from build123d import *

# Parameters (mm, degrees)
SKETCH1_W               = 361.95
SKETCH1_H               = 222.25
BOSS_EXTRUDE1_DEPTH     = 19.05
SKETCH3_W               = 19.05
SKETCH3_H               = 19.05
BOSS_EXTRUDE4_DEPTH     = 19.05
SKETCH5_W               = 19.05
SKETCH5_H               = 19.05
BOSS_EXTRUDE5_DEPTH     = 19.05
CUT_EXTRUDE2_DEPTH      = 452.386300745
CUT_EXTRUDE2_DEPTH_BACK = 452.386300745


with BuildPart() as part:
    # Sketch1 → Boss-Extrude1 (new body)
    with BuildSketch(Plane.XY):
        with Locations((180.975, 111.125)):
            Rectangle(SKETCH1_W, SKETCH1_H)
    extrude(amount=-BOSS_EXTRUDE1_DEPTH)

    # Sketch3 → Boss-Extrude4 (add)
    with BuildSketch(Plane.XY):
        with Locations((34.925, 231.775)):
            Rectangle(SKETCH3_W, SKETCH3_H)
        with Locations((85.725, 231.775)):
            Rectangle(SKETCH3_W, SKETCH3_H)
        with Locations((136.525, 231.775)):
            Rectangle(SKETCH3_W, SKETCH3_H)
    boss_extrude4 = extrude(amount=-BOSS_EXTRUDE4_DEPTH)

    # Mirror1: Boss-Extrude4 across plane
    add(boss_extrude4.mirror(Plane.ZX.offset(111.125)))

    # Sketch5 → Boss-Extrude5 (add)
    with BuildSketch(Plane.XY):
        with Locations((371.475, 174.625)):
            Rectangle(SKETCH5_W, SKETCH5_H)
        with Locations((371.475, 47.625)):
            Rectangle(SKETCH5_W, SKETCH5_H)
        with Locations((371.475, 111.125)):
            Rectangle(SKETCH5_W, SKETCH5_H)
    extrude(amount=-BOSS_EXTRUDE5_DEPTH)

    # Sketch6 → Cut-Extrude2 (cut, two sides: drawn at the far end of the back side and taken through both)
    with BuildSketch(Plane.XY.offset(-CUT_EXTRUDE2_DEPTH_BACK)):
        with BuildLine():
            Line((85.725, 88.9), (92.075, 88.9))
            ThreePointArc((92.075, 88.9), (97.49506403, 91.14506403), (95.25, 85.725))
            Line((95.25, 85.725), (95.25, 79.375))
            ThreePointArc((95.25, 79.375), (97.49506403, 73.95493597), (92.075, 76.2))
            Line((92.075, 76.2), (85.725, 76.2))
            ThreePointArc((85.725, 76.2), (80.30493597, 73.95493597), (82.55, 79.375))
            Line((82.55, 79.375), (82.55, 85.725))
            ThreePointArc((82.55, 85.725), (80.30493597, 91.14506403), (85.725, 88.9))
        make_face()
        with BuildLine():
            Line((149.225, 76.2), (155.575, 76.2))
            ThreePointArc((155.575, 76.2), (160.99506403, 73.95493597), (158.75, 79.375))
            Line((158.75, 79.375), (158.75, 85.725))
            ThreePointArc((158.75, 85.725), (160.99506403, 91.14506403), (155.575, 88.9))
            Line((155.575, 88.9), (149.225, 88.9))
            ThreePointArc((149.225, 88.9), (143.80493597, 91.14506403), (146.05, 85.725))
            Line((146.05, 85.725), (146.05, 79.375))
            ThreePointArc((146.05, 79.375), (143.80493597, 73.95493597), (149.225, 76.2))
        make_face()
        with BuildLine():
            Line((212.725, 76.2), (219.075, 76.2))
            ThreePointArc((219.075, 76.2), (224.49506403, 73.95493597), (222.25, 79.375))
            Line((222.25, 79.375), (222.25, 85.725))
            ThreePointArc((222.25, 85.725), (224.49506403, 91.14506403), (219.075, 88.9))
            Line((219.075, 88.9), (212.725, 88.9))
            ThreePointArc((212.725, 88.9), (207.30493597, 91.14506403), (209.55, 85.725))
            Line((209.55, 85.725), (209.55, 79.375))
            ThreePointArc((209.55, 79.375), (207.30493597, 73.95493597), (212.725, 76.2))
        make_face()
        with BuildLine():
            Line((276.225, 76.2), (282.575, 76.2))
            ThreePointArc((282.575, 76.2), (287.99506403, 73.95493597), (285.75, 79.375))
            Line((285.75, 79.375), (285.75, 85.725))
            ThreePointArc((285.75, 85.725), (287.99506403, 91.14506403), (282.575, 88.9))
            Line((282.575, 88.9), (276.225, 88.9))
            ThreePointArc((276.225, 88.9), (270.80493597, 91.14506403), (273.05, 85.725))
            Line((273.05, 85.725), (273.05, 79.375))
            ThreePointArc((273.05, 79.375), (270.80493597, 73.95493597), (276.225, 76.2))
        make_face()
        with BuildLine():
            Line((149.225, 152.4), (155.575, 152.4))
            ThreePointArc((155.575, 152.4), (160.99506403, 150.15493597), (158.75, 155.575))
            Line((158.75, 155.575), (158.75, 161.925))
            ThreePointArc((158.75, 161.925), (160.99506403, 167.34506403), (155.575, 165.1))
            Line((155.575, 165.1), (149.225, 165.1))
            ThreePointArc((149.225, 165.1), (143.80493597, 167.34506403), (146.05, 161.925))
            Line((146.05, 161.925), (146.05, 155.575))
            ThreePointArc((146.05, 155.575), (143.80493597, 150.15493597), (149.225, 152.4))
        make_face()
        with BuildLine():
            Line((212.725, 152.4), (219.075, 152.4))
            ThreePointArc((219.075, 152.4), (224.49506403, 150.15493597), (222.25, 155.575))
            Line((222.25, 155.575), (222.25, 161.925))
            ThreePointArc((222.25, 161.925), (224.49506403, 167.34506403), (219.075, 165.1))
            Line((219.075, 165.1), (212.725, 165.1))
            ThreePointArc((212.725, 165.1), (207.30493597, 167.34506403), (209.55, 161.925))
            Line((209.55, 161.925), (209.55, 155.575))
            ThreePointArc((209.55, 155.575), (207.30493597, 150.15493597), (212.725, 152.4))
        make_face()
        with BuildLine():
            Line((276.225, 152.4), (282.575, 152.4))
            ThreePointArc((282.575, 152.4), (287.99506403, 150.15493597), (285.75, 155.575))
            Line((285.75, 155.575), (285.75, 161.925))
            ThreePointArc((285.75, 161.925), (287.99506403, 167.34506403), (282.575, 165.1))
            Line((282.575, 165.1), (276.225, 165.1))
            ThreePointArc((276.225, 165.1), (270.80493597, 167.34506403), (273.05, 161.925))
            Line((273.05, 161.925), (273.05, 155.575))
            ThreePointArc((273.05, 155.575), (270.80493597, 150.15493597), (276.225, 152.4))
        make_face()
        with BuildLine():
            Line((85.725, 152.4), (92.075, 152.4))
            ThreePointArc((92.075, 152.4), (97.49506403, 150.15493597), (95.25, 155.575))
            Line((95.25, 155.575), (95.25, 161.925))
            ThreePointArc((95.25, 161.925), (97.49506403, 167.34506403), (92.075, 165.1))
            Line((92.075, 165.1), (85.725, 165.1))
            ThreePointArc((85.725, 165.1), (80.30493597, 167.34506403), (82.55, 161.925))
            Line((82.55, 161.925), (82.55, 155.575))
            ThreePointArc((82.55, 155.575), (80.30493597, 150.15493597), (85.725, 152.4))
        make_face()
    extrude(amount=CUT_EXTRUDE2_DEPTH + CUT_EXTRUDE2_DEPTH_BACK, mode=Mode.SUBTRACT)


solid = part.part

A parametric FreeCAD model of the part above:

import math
import FreeCAD as App
import Part
import Sketcher
Q = App.Units.Quantity


def add_polygon(sketch, points):
    """Adds a closed chain of lines whose ends are joined by coincident constraints."""
    first, n = sketch.GeometryCount, len(points)
    for a, b in zip(points, points[1:] + points[:1]):
        sketch.addGeometry(Part.LineSegment(App.Vector(*a, 0), App.Vector(*b, 0)), False)
    for i in range(n):
        sketch.addConstraint(Sketcher.Constraint("Coincident", first + i, 2, first + (i + 1) % n, 1))

doc = App.newDocument("Part")
body = doc.addObject("PartDesign::Body", "Body")

sketch1 = doc.addObject("Sketcher::SketchObject", "Sketch")
body.addObject(sketch1)
sketch1.AttachmentSupport = (doc.XY_Plane, [""])
sketch1.MapMode = "FlatFace"
add_polygon(sketch1, [(0, 222), (0, 0), (362, 0), (362, 222)])
sketch1.addConstraint([
    Sketcher.Constraint("Vertical", 0),
    Sketcher.Constraint("Horizontal", 1),
    Sketcher.Constraint("Vertical", 2),
    Sketcher.Constraint("Horizontal", 3),
    Sketcher.Constraint("Coincident", 0, 2, -1, 1),
    Sketcher.Constraint("DistanceX", 1, 1, 1, 2, Q("14.25 in")),
    Sketcher.Constraint("DistanceY", 0, 2, 0, 1, Q("8.75 in")),
])
pad1 = doc.addObject("PartDesign::Pad", "Pad")
body.addObject(pad1)
pad1.Profile = sketch1
pad1.Length = Q("0.75 in")
pad1.Reversed = True

sketch2 = doc.addObject("Sketcher::SketchObject", "Sketch001")
body.addObject(sketch2)
sketch2.AttachmentSupport = (doc.XY_Plane, [""])
sketch2.MapMode = "FlatFace"
add_polygon(sketch2, [(25, 241), (25, 222), (44, 222), (44, 241)])
add_polygon(sketch2, [(76, 241), (76, 222), (95, 222), (95, 241)])
add_polygon(sketch2, [(127, 241), (127, 222), (146, 222), (146, 241)])
sketch2.addConstraint([
    Sketcher.Constraint("Vertical", 0),
    Sketcher.Constraint("Horizontal", 1),
    Sketcher.Constraint("Vertical", 2),
    Sketcher.Constraint("Horizontal", 3),
    Sketcher.Constraint("Vertical", 4),
    Sketcher.Constraint("Horizontal", 5),
    Sketcher.Constraint("Vertical", 6),
    Sketcher.Constraint("Horizontal", 7),
    Sketcher.Constraint("Vertical", 8),
    Sketcher.Constraint("Horizontal", 9),
    Sketcher.Constraint("Vertical", 10),
    Sketcher.Constraint("Horizontal", 11),
    Sketcher.Constraint("Horizontal", 1, 2, 4, 2),
    Sketcher.Constraint("Horizontal", 3, 2, 6, 2),
    Sketcher.Constraint("Horizontal", 5, 2, 8, 2),
    Sketcher.Constraint("Horizontal", 7, 2, 10, 2),
    Sketcher.Constraint("Equal", 3, 5),
    Sketcher.Constraint("Equal", 7, 9),
    Sketcher.Constraint("Equal", 11, 0),
    Sketcher.Constraint("DistanceX", -1, 1, 0, 2, Q("1 in")),
    Sketcher.Constraint("DistanceX", -1, 1, 4, 2, Q("3 in")),
    Sketcher.Constraint("DistanceX", -1, 1, 8, 2, Q("5 in")),
    Sketcher.Constraint("DistanceX", 1, 1, 1, 2, Q("0.75 in")),
    Sketcher.Constraint("DistanceY", -1, 1, 2, 2, Q("9.5 in")),
])
pad2 = doc.addObject("PartDesign::Pad", "Pad001")
body.addObject(pad2)
pad2.Profile = sketch2
pad2.Length = Q("0.75 in")
pad2.Reversed = True
doc.recompute()

datumplane = doc.addObject("PartDesign::Plane", "DatumPlane")
body.addObject(datumplane)
datumplane.AttachmentSupport = (doc.XZ_Plane, [""])
datumplane.MapMode = "FlatFace"
datumplane.AttachmentOffset = App.Placement(App.Vector(0, 0, -4.375 * 25.4), App.Rotation())
mirrored = doc.addObject("PartDesign::Mirrored", "Mirrored")
body.addObject(mirrored)
mirrored.Originals = [pad2]
mirrored.MirrorPlane = (datumplane, [""])
body.Tip = mirrored

sketch3 = doc.addObject("Sketcher::SketchObject", "Sketch002")
body.addObject(sketch3)
sketch3.AttachmentSupport = (doc.XY_Plane, [""])
sketch3.MapMode = "FlatFace"
add_polygon(sketch3, [(362, 184), (362, 165), (381, 165), (381, 184)])
add_polygon(sketch3, [(362, 57), (362, 38), (381, 38), (381, 57)])
add_polygon(sketch3, [(362, 121), (362, 102), (381, 102), (381, 121)])
sketch3.addConstraint([
    Sketcher.Constraint("Vertical", 0),
    Sketcher.Constraint("Horizontal", 1),
    Sketcher.Constraint("Vertical", 2),
    Sketcher.Constraint("Horizontal", 3),
    Sketcher.Constraint("Vertical", 4),
    Sketcher.Constraint("Horizontal", 5),
    Sketcher.Constraint("Vertical", 6),
    Sketcher.Constraint("Horizontal", 7),
    Sketcher.Constraint("Vertical", 8),
    Sketcher.Constraint("Horizontal", 9),
    Sketcher.Constraint("Vertical", 10),
    Sketcher.Constraint("Horizontal", 11),
    Sketcher.Constraint("Vertical", 3, 2, 4, 2),
    Sketcher.Constraint("Vertical", 2, 2, 5, 2),
    Sketcher.Constraint("Vertical", 7, 2, 8, 2),
    Sketcher.Constraint("Vertical", 6, 2, 9, 2),
    Sketcher.Constraint("Equal", 11, 0),
    Sketcher.Constraint("Equal", 2, 4),
    Sketcher.Constraint("Equal", 6, 8),
    Sketcher.Constraint("DistanceX", -1, 1, 1, 2, Q("15 in")),
    Sketcher.Constraint("DistanceY", -1, 1, 8, 2, Q("4 in")),
    Sketcher.Constraint("DistanceY", 4, 2, 0, 2, Q("5 in")),
    Sketcher.Constraint("DistanceX", 1, 1, 1, 2, Q("0.75 in")),
    Sketcher.Constraint("DistanceY", -1, 1, 0, 2, Q("6.5 in")),
])
pad3 = doc.addObject("PartDesign::Pad", "Pad002")
body.addObject(pad3)
pad3.Profile = sketch3
pad3.Length = Q("0.75 in")
pad3.Reversed = True

sketch4 = doc.addObject("Sketcher::SketchObject", "Sketch003")
body.addObject(sketch4)
sketch4.AttachmentSupport = (doc.XY_Plane, [""])
sketch4.MapMode = "FlatFace"
sketch4.addGeometry([
    Part.LineSegment(App.Vector(92.1, 88.9, 0), App.Vector(85.7, 88.9, 0)),
    Part.ArcOfCircle(Part.Circle(App.Vector(82.5, 88.9, 0), App.Vector(0, 0, 1), 3.2), math.radians(0), math.radians(270)),
    Part.LineSegment(App.Vector(82.5, 85.7, 0), App.Vector(82.5, 79.4, 0)),
    Part.ArcOfCircle(Part.Circle(App.Vector(82.5, 76.2, 0), App.Vector(0, 0, 1), 3.2), math.radians(90), math.radians(360)),
    Part.LineSegment(App.Vector(85.7, 76.2, 0), App.Vector(92.1, 76.2, 0)),
    Part.ArcOfCircle(Part.Circle(App.Vector(95.2, 76.2, 0), App.Vector(0, 0, 1), 3.2), math.radians(180), math.radians(450)),
    Part.LineSegment(App.Vector(95.2, 79.4, 0), App.Vector(95.2, 85.7, 0)),
    Part.ArcOfCircle(Part.Circle(App.Vector(95.2, 88.9, 0), App.Vector(0, 0, 1), 3.2), math.radians(-90), math.radians(180)),
    Part.LineSegment(App.Vector(149.2, 76.2, 0), App.Vector(155.6, 76.2, 0)),
    Part.ArcOfCircle(Part.Circle(App.Vector(158.8, 76.2, 0), App.Vector(0, 0, 1), 3.2), math.radians(180), math.radians(450)),
    Part.LineSegment(App.Vector(158.8, 79.4, 0), App.Vector(158.8, 85.7, 0)),
    Part.ArcOfCircle(Part.Circle(App.Vector(158.8, 88.9, 0), App.Vector(0, 0, 1), 3.2), math.radians(-90), math.radians(180)),
    Part.LineSegment(App.Vector(155.6, 88.9, 0), App.Vector(149.2, 88.9, 0)),
    Part.ArcOfCircle(Part.Circle(App.Vector(146.1, 88.9, 0), App.Vector(0, 0, 1), 3.2), math.radians(0), math.radians(270)),
    Part.LineSegment(App.Vector(146.1, 85.7, 0), App.Vector(146.1, 79.4, 0)),
    Part.ArcOfCircle(Part.Circle(App.Vector(146.1, 76.2, 0), App.Vector(0, 0, 1), 3.2), math.radians(90), math.radians(360)),
    Part.LineSegment(App.Vector(212.7, 76.2, 0), App.Vector(219.1, 76.2, 0)),
    Part.ArcOfCircle(Part.Circle(App.Vector(222.2, 76.2, 0), App.Vector(0, 0, 1), 3.2), math.radians(180), math.radians(450)),
    Part.LineSegment(App.Vector(222.2, 79.4, 0), App.Vector(222.2, 85.7, 0)),
    Part.ArcOfCircle(Part.Circle(App.Vector(222.2, 88.9, 0), App.Vector(0, 0, 1), 3.2), math.radians(-90), math.radians(180)),
    Part.LineSegment(App.Vector(219.1, 88.9, 0), App.Vector(212.7, 88.9, 0)),
    Part.ArcOfCircle(Part.Circle(App.Vector(209.6, 88.9, 0), App.Vector(0, 0, 1), 3.2), math.radians(0), math.radians(270)),
    Part.LineSegment(App.Vector(209.6, 85.7, 0), App.Vector(209.6, 79.4, 0)),
    Part.ArcOfCircle(Part.Circle(App.Vector(209.6, 76.2, 0), App.Vector(0, 0, 1), 3.2), math.radians(90), math.radians(360)),
    Part.LineSegment(App.Vector(276.2, 76.2, 0), App.Vector(282.6, 76.2, 0)),
    Part.ArcOfCircle(Part.Circle(App.Vector(285.8, 76.2, 0), App.Vector(0, 0, 1), 3.2), math.radians(180), math.radians(450)),
    Part.LineSegment(App.Vector(285.8, 79.4, 0), App.Vector(285.8, 85.7, 0)),
    Part.ArcOfCircle(Part.Circle(App.Vector(285.8, 88.9, 0), App.Vector(0, 0, 1), 3.2), math.radians(-90), math.radians(180)),
    Part.LineSegment(App.Vector(282.6, 88.9, 0), App.Vector(276.2, 88.9, 0)),
    Part.ArcOfCircle(Part.Circle(App.Vector(273.1, 88.9, 0), App.Vector(0, 0, 1), 3.2), math.radians(0), math.radians(270)),
    Part.LineSegment(App.Vector(273.1, 85.7, 0), App.Vector(273.1, 79.4, 0)),
    Part.ArcOfCircle(Part.Circle(App.Vector(273.1, 76.2, 0), App.Vector(0, 0, 1), 3.2), math.radians(90), math.radians(360)),
    Part.LineSegment(App.Vector(149.2, 152.4, 0), App.Vector(155.6, 152.4, 0)),
    Part.ArcOfCircle(Part.Circle(App.Vector(158.8, 152.4, 0), App.Vector(0, 0, 1), 3.2), math.radians(180), math.radians(450)),
    Part.LineSegment(App.Vector(158.8, 155.6, 0), App.Vector(158.8, 161.9, 0)),
    Part.ArcOfCircle(Part.Circle(App.Vector(158.8, 165.1, 0), App.Vector(0, 0, 1), 3.2), math.radians(-90), math.radians(180)),
    Part.LineSegment(App.Vector(155.6, 165.1, 0), App.Vector(149.2, 165.1, 0)),
    Part.ArcOfCircle(Part.Circle(App.Vector(146.1, 165.1, 0), App.Vector(0, 0, 1), 3.2), math.radians(0), math.radians(270)),
    Part.LineSegment(App.Vector(146.1, 161.9, 0), App.Vector(146.1, 155.6, 0)),
    Part.ArcOfCircle(Part.Circle(App.Vector(146.1, 152.4, 0), App.Vector(0, 0, 1), 3.2), math.radians(90), math.radians(360)),
    Part.LineSegment(App.Vector(212.7, 152.4, 0), App.Vector(219.1, 152.4, 0)),
    Part.ArcOfCircle(Part.Circle(App.Vector(222.2, 152.4, 0), App.Vector(0, 0, 1), 3.2), math.radians(180), math.radians(450)),
    Part.LineSegment(App.Vector(222.2, 155.6, 0), App.Vector(222.2, 161.9, 0)),
    Part.ArcOfCircle(Part.Circle(App.Vector(222.2, 165.1, 0), App.Vector(0, 0, 1), 3.2), math.radians(-90), math.radians(180)),
    Part.LineSegment(App.Vector(219.1, 165.1, 0), App.Vector(212.7, 165.1, 0)),
    Part.ArcOfCircle(Part.Circle(App.Vector(209.6, 165.1, 0), App.Vector(0, 0, 1), 3.2), math.radians(0), math.radians(270)),
    Part.LineSegment(App.Vector(209.6, 161.9, 0), App.Vector(209.6, 155.6, 0)),
    Part.ArcOfCircle(Part.Circle(App.Vector(209.6, 152.4, 0), App.Vector(0, 0, 1), 3.2), math.radians(90), math.radians(360)),
    Part.LineSegment(App.Vector(276.2, 152.4, 0), App.Vector(282.6, 152.4, 0)),
    Part.ArcOfCircle(Part.Circle(App.Vector(285.8, 152.4, 0), App.Vector(0, 0, 1), 3.2), math.radians(180), math.radians(450)),
    Part.LineSegment(App.Vector(285.8, 155.6, 0), App.Vector(285.8, 161.9, 0)),
    Part.ArcOfCircle(Part.Circle(App.Vector(285.8, 165.1, 0), App.Vector(0, 0, 1), 3.2), math.radians(-90), math.radians(180)),
    Part.LineSegment(App.Vector(282.6, 165.1, 0), App.Vector(276.2, 165.1, 0)),
    Part.ArcOfCircle(Part.Circle(App.Vector(273.1, 165.1, 0), App.Vector(0, 0, 1), 3.2), math.radians(0), math.radians(270)),
    Part.LineSegment(App.Vector(273.1, 161.9, 0), App.Vector(273.1, 155.6, 0)),
    Part.ArcOfCircle(Part.Circle(App.Vector(273.1, 152.4, 0), App.Vector(0, 0, 1), 3.2), math.radians(90), math.radians(360)),
    Part.LineSegment(App.Vector(85.7, 152.4, 0), App.Vector(92.1, 152.4, 0)),
    Part.ArcOfCircle(Part.Circle(App.Vector(95.2, 152.4, 0), App.Vector(0, 0, 1), 3.2), math.radians(180), math.radians(450)),
    Part.LineSegment(App.Vector(95.2, 155.6, 0), App.Vector(95.2, 161.9, 0)),
    Part.ArcOfCircle(Part.Circle(App.Vector(95.2, 165.1, 0), App.Vector(0, 0, 1), 3.2), math.radians(-90), math.radians(180)),
    Part.LineSegment(App.Vector(92.1, 165.1, 0), App.Vector(85.7, 165.1, 0)),
    Part.ArcOfCircle(Part.Circle(App.Vector(82.5, 165.1, 0), App.Vector(0, 0, 1), 3.2), math.radians(0), math.radians(270)),
    Part.LineSegment(App.Vector(82.5, 161.9, 0), App.Vector(82.5, 155.6, 0)),
    Part.ArcOfCircle(Part.Circle(App.Vector(82.5, 152.4, 0), App.Vector(0, 0, 1), 3.2), math.radians(90), math.radians(360)),
], False)
sketch4.addConstraint([
    Sketcher.Constraint("Coincident", 0, 2, 1, 1),
    Sketcher.Constraint("Coincident", 1, 2, 2, 1),
    Sketcher.Constraint("Coincident", 2, 2, 3, 1),
    Sketcher.Constraint("Coincident", 3, 2, 4, 1),
    Sketcher.Constraint("Coincident", 4, 2, 5, 1),
    Sketcher.Constraint("Coincident", 5, 2, 6, 1),
    Sketcher.Constraint("Coincident", 6, 2, 7, 1),
    Sketcher.Constraint("Coincident", 7, 2, 0, 1),
    Sketcher.Constraint("Coincident", 8, 2, 9, 1),
    Sketcher.Constraint("Coincident", 9, 2, 10, 1),
    Sketcher.Constraint("Coincident", 10, 2, 11, 1),
    Sketcher.Constraint("Coincident", 11, 2, 12, 1),
    Sketcher.Constraint("Coincident", 12, 2, 13, 1),
    Sketcher.Constraint("Coincident", 13, 2, 14, 1),
    Sketcher.Constraint("Coincident", 14, 2, 15, 1),
    Sketcher.Constraint("Coincident", 15, 2, 8, 1),
    Sketcher.Constraint("Coincident", 16, 2, 17, 1),
    Sketcher.Constraint("Coincident", 17, 2, 18, 1),
    Sketcher.Constraint("Coincident", 18, 2, 19, 1),
    Sketcher.Constraint("Coincident", 19, 2, 20, 1),
    Sketcher.Constraint("Coincident", 20, 2, 21, 1),
    Sketcher.Constraint("Coincident", 21, 2, 22, 1),
    Sketcher.Constraint("Coincident", 22, 2, 23, 1),
    Sketcher.Constraint("Coincident", 23, 2, 16, 1),
    Sketcher.Constraint("Coincident", 24, 2, 25, 1),
    Sketcher.Constraint("Coincident", 25, 2, 26, 1),
    Sketcher.Constraint("Coincident", 26, 2, 27, 1),
    Sketcher.Constraint("Coincident", 27, 2, 28, 1),
    Sketcher.Constraint("Coincident", 28, 2, 29, 1),
    Sketcher.Constraint("Coincident", 29, 2, 30, 1),
    Sketcher.Constraint("Coincident", 30, 2, 31, 1),
    Sketcher.Constraint("Coincident", 31, 2, 24, 1),
    Sketcher.Constraint("Coincident", 32, 2, 33, 1),
    Sketcher.Constraint("Coincident", 33, 2, 34, 1),
    Sketcher.Constraint("Coincident", 34, 2, 35, 1),
    Sketcher.Constraint("Coincident", 35, 2, 36, 1),
    Sketcher.Constraint("Coincident", 36, 2, 37, 1),
    Sketcher.Constraint("Coincident", 37, 2, 38, 1),
    Sketcher.Constraint("Coincident", 38, 2, 39, 1),
    Sketcher.Constraint("Coincident", 39, 2, 32, 1),
    Sketcher.Constraint("Coincident", 40, 2, 41, 1),
    Sketcher.Constraint("Coincident", 41, 2, 42, 1),
    Sketcher.Constraint("Coincident", 42, 2, 43, 1),
    Sketcher.Constraint("Coincident", 43, 2, 44, 1),
    Sketcher.Constraint("Coincident", 44, 2, 45, 1),
    Sketcher.Constraint("Coincident", 45, 2, 46, 1),
    Sketcher.Constraint("Coincident", 46, 2, 47, 1),
    Sketcher.Constraint("Coincident", 47, 2, 40, 1),
    Sketcher.Constraint("Coincident", 48, 2, 49, 1),
    Sketcher.Constraint("Coincident", 49, 2, 50, 1),
    Sketcher.Constraint("Coincident", 50, 2, 51, 1),
    Sketcher.Constraint("Coincident", 51, 2, 52, 1),
    Sketcher.Constraint("Coincident", 52, 2, 53, 1),
    Sketcher.Constraint("Coincident", 53, 2, 54, 1),
    Sketcher.Constraint("Coincident", 54, 2, 55, 1),
    Sketcher.Constraint("Coincident", 55, 2, 48, 1),
    Sketcher.Constraint("Coincident", 56, 2, 57, 1),
    Sketcher.Constraint("Coincident", 57, 2, 58, 1),
    Sketcher.Constraint("Coincident", 58, 2, 59, 1),
    Sketcher.Constraint("Coincident", 59, 2, 60, 1),
    Sketcher.Constraint("Coincident", 60, 2, 61, 1),
    Sketcher.Constraint("Coincident", 61, 2, 62, 1),
    Sketcher.Constraint("Coincident", 62, 2, 63, 1),
    Sketcher.Constraint("Coincident", 63, 2, 56, 1),
    Sketcher.Constraint("Horizontal", 0),
    Sketcher.Constraint("Vertical", 2),
    Sketcher.Constraint("Horizontal", 4),
    Sketcher.Constraint("Vertical", 6),
    Sketcher.Constraint("Horizontal", 8),
    Sketcher.Constraint("Vertical", 10),
    Sketcher.Constraint("Horizontal", 12),
    Sketcher.Constraint("Vertical", 14),
    Sketcher.Constraint("Horizontal", 16),
    Sketcher.Constraint("Vertical", 18),
    Sketcher.Constraint("Horizontal", 20),
    Sketcher.Constraint("Vertical", 22),
    Sketcher.Constraint("Horizontal", 24),
    Sketcher.Constraint("Vertical", 26),
    Sketcher.Constraint("Horizontal", 28),
    Sketcher.Constraint("Vertical", 30),
    Sketcher.Constraint("Horizontal", 32),
    Sketcher.Constraint("Vertical", 34),
    Sketcher.Constraint("Horizontal", 36),
    Sketcher.Constraint("Vertical", 38),
    Sketcher.Constraint("Horizontal", 40),
    Sketcher.Constraint("Vertical", 42),
    Sketcher.Constraint("Horizontal", 44),
    Sketcher.Constraint("Vertical", 46),
    Sketcher.Constraint("Horizontal", 48),
    Sketcher.Constraint("Vertical", 50),
    Sketcher.Constraint("Horizontal", 52),
    Sketcher.Constraint("Vertical", 54),
    Sketcher.Constraint("Horizontal", 56),
    Sketcher.Constraint("Vertical", 58),
    Sketcher.Constraint("Horizontal", 60),
    Sketcher.Constraint("Vertical", 62),
    Sketcher.Constraint("Equal", 1, 3),
    Sketcher.Constraint("Equal", 3, 5),
    Sketcher.Constraint("Equal", 5, 7),
    Sketcher.Constraint("Equal", 7, 9),
    Sketcher.Constraint("Equal", 9, 11),
    Sketcher.Constraint("Equal", 11, 13),
    Sketcher.Constraint("Equal", 13, 15),
    Sketcher.Constraint("Equal", 15, 17),
    Sketcher.Constraint("Equal", 17, 19),
    Sketcher.Constraint("Equal", 19, 21),
    Sketcher.Constraint("Equal", 21, 23),
    Sketcher.Constraint("Equal", 23, 25),
    Sketcher.Constraint("Equal", 25, 27),
    Sketcher.Constraint("Equal", 27, 29),
    Sketcher.Constraint("Equal", 29, 31),
    Sketcher.Constraint("Equal", 31, 33),
    Sketcher.Constraint("Equal", 33, 35),
    Sketcher.Constraint("Equal", 35, 37),
    Sketcher.Constraint("Equal", 37, 39),
    Sketcher.Constraint("Equal", 39, 41),
    Sketcher.Constraint("Equal", 41, 43),
    Sketcher.Constraint("Equal", 43, 45),
    Sketcher.Constraint("Equal", 45, 47),
    Sketcher.Constraint("Equal", 47, 49),
    Sketcher.Constraint("Equal", 49, 51),
    Sketcher.Constraint("Equal", 51, 53),
    Sketcher.Constraint("Equal", 53, 55),
    Sketcher.Constraint("Equal", 55, 57),
    Sketcher.Constraint("Equal", 57, 59),
    Sketcher.Constraint("Equal", 59, 61),
    Sketcher.Constraint("Equal", 61, 63),
    Sketcher.Constraint("Horizontal", 3, 3, 5, 3),
    Sketcher.Constraint("Horizontal", 1, 3, 7, 3),
    Sketcher.Constraint("Horizontal", 5, 3, 9, 3),
    Sketcher.Constraint("Horizontal", 7, 3, 11, 3),
    Sketcher.Constraint("Horizontal", 11, 3, 13, 3),
    Sketcher.Constraint("Horizontal", 9, 3, 15, 3),
    Sketcher.Constraint("Horizontal", 15, 3, 17, 3),
    Sketcher.Constraint("Horizontal", 13, 3, 19, 3),
    Sketcher.Constraint("Horizontal", 19, 3, 21, 3),
    Sketcher.Constraint("Horizontal", 17, 3, 23, 3),
    Sketcher.Constraint("Horizontal", 23, 3, 25, 3),
    Sketcher.Constraint("Horizontal", 21, 3, 27, 3),
    Sketcher.Constraint("Horizontal", 27, 3, 29, 3),
    Sketcher.Constraint("Horizontal", 25, 3, 31, 3),
    Sketcher.Constraint("Horizontal", 35, 3, 37, 3),
    Sketcher.Constraint("Horizontal", 33, 3, 39, 3),
    Sketcher.Constraint("Horizontal", 39, 3, 41, 3),
    Sketcher.Constraint("Horizontal", 37, 3, 43, 3),
    Sketcher.Constraint("Horizontal", 43, 3, 45, 3),
    Sketcher.Constraint("Horizontal", 41, 3, 47, 3),
    Sketcher.Constraint("Horizontal", 47, 3, 49, 3),
    Sketcher.Constraint("Horizontal", 45, 3, 51, 3),
    Sketcher.Constraint("Horizontal", 51, 3, 53, 3),
    Sketcher.Constraint("Horizontal", 49, 3, 55, 3),
    Sketcher.Constraint("Horizontal", 55, 3, 57, 3),
    Sketcher.Constraint("Horizontal", 53, 3, 59, 3),
    Sketcher.Constraint("Horizontal", 59, 3, 61, 3),
    Sketcher.Constraint("Horizontal", 57, 3, 63, 3),
    Sketcher.Constraint("Horizontal", 29, 3, 0, 2),
    Sketcher.Constraint("Horizontal", 31, 3, 3, 2),
    Sketcher.Constraint("Horizontal", 4, 2, 8, 2),
    Sketcher.Constraint("Horizontal", 7, 2, 11, 2),
    Sketcher.Constraint("Horizontal", 15, 2, 16, 2),
    Sketcher.Constraint("Horizontal", 12, 2, 19, 2),
    Sketcher.Constraint("Horizontal", 23, 2, 24, 2),
    Sketcher.Constraint("Horizontal", 20, 2, 27, 2),
    Sketcher.Constraint("Horizontal", 63, 3, 32, 2),
    Sketcher.Constraint("Horizontal", 61, 3, 35, 2),
    Sketcher.Constraint("Horizontal", 39, 2, 40, 2),
    Sketcher.Constraint("Horizontal", 36, 2, 43, 2),
    Sketcher.Constraint("Horizontal", 47, 2, 48, 2),
    Sketcher.Constraint("Horizontal", 44, 2, 51, 2),
    Sketcher.Constraint("Horizontal", 55, 2, 56, 2),
    Sketcher.Constraint("Horizontal", 52, 2, 59, 2),
    Sketcher.Constraint("Vertical", 1, 3, 3, 3),
    Sketcher.Constraint("Vertical", 5, 3, 7, 3),
    Sketcher.Constraint("Vertical", 9, 3, 11, 3),
    Sketcher.Constraint("Vertical", 13, 3, 15, 3),
    Sketcher.Constraint("Vertical", 17, 3, 19, 3),
    Sketcher.Constraint("Vertical", 21, 3, 23, 3),
    Sketcher.Constraint("Vertical", 25, 3, 27, 3),
    Sketcher.Constraint("Vertical", 29, 3, 31, 3),
    Sketcher.Constraint("Vertical", 11, 3, 33, 3),
    Sketcher.Constraint("Vertical", 33, 3, 35, 3),
    Sketcher.Constraint("Vertical", 15, 3, 37, 3),
    Sketcher.Constraint("Vertical", 37, 3, 39, 3),
    Sketcher.Constraint("Vertical", 19, 3, 41, 3),
    Sketcher.Constraint("Vertical", 41, 3, 43, 3),
    Sketcher.Constraint("Vertical", 23, 3, 45, 3),
    Sketcher.Constraint("Vertical", 45, 3, 47, 3),
    Sketcher.Constraint("Vertical", 27, 3, 49, 3),
    Sketcher.Constraint("Vertical", 49, 3, 51, 3),
    Sketcher.Constraint("Vertical", 31, 3, 53, 3),
    Sketcher.Constraint("Vertical", 53, 3, 55, 3),
    Sketcher.Constraint("Vertical", 7, 3, 57, 3),
    Sketcher.Constraint("Vertical", 57, 3, 59, 3),
    Sketcher.Constraint("Vertical", 3, 3, 61, 3),
    Sketcher.Constraint("Vertical", 61, 3, 63, 3),
    Sketcher.Constraint("Vertical", 63, 3, 1, 2),
    Sketcher.Constraint("Vertical", 59, 3, 5, 2),
    Sketcher.Constraint("Vertical", 35, 3, 9, 2),
    Sketcher.Constraint("Vertical", 39, 3, 13, 2),
    Sketcher.Constraint("Vertical", 43, 3, 17, 2),
    Sketcher.Constraint("Vertical", 47, 3, 21, 2),
    Sketcher.Constraint("Vertical", 51, 3, 25, 2),
    Sketcher.Constraint("Vertical", 55, 3, 29, 2),
    Sketcher.Constraint("Vertical", 10, 2, 33, 2),
    Sketcher.Constraint("Vertical", 14, 2, 37, 2),
    Sketcher.Constraint("Vertical", 18, 2, 41, 2),
    Sketcher.Constraint("Vertical", 22, 2, 45, 2),
    Sketcher.Constraint("Vertical", 26, 2, 49, 2),
    Sketcher.Constraint("Vertical", 30, 2, 53, 2),
    Sketcher.Constraint("Vertical", 6, 2, 57, 2),
    Sketcher.Constraint("Vertical", 2, 2, 61, 2),
    Sketcher.Constraint("Equal", 4, 8),
    Sketcher.Constraint("Equal", 12, 16),
    Sketcher.Constraint("Equal", 20, 24),
    Sketcher.Constraint("Equal", 60, 2),
    Sketcher.Constraint("Equal", 30, 34),
    Sketcher.Constraint("DistanceY", -1, 1, 3, 3, Q("3 in")),
    Sketcher.Constraint("DistanceY", -1, 1, 33, 3, Q("6 in")),
    Sketcher.Constraint("Radius", 1, Q("0.125 in")),
    Sketcher.Constraint("DistanceX", 0, 2, 0, 1, Q("0.25 in")),
    Sketcher.Constraint("DistanceX", -1, 1, 1, 3, Q("3.25 in")),
    Sketcher.Constraint("DistanceX", -1, 1, 9, 3, Q("6.25 in")),
    Sketcher.Constraint("DistanceX", -1, 1, 17, 3, Q("8.75 in")),
    Sketcher.Constraint("DistanceX", -1, 1, 25, 3, Q("11.25 in")),
])
pocket1 = doc.addObject("PartDesign::Pocket", "Pocket")
body.addObject(pocket1)
pocket1.Profile = sketch4
pocket1.Type = "ThroughAll"
pocket1.Midplane = True

doc.recompute()
